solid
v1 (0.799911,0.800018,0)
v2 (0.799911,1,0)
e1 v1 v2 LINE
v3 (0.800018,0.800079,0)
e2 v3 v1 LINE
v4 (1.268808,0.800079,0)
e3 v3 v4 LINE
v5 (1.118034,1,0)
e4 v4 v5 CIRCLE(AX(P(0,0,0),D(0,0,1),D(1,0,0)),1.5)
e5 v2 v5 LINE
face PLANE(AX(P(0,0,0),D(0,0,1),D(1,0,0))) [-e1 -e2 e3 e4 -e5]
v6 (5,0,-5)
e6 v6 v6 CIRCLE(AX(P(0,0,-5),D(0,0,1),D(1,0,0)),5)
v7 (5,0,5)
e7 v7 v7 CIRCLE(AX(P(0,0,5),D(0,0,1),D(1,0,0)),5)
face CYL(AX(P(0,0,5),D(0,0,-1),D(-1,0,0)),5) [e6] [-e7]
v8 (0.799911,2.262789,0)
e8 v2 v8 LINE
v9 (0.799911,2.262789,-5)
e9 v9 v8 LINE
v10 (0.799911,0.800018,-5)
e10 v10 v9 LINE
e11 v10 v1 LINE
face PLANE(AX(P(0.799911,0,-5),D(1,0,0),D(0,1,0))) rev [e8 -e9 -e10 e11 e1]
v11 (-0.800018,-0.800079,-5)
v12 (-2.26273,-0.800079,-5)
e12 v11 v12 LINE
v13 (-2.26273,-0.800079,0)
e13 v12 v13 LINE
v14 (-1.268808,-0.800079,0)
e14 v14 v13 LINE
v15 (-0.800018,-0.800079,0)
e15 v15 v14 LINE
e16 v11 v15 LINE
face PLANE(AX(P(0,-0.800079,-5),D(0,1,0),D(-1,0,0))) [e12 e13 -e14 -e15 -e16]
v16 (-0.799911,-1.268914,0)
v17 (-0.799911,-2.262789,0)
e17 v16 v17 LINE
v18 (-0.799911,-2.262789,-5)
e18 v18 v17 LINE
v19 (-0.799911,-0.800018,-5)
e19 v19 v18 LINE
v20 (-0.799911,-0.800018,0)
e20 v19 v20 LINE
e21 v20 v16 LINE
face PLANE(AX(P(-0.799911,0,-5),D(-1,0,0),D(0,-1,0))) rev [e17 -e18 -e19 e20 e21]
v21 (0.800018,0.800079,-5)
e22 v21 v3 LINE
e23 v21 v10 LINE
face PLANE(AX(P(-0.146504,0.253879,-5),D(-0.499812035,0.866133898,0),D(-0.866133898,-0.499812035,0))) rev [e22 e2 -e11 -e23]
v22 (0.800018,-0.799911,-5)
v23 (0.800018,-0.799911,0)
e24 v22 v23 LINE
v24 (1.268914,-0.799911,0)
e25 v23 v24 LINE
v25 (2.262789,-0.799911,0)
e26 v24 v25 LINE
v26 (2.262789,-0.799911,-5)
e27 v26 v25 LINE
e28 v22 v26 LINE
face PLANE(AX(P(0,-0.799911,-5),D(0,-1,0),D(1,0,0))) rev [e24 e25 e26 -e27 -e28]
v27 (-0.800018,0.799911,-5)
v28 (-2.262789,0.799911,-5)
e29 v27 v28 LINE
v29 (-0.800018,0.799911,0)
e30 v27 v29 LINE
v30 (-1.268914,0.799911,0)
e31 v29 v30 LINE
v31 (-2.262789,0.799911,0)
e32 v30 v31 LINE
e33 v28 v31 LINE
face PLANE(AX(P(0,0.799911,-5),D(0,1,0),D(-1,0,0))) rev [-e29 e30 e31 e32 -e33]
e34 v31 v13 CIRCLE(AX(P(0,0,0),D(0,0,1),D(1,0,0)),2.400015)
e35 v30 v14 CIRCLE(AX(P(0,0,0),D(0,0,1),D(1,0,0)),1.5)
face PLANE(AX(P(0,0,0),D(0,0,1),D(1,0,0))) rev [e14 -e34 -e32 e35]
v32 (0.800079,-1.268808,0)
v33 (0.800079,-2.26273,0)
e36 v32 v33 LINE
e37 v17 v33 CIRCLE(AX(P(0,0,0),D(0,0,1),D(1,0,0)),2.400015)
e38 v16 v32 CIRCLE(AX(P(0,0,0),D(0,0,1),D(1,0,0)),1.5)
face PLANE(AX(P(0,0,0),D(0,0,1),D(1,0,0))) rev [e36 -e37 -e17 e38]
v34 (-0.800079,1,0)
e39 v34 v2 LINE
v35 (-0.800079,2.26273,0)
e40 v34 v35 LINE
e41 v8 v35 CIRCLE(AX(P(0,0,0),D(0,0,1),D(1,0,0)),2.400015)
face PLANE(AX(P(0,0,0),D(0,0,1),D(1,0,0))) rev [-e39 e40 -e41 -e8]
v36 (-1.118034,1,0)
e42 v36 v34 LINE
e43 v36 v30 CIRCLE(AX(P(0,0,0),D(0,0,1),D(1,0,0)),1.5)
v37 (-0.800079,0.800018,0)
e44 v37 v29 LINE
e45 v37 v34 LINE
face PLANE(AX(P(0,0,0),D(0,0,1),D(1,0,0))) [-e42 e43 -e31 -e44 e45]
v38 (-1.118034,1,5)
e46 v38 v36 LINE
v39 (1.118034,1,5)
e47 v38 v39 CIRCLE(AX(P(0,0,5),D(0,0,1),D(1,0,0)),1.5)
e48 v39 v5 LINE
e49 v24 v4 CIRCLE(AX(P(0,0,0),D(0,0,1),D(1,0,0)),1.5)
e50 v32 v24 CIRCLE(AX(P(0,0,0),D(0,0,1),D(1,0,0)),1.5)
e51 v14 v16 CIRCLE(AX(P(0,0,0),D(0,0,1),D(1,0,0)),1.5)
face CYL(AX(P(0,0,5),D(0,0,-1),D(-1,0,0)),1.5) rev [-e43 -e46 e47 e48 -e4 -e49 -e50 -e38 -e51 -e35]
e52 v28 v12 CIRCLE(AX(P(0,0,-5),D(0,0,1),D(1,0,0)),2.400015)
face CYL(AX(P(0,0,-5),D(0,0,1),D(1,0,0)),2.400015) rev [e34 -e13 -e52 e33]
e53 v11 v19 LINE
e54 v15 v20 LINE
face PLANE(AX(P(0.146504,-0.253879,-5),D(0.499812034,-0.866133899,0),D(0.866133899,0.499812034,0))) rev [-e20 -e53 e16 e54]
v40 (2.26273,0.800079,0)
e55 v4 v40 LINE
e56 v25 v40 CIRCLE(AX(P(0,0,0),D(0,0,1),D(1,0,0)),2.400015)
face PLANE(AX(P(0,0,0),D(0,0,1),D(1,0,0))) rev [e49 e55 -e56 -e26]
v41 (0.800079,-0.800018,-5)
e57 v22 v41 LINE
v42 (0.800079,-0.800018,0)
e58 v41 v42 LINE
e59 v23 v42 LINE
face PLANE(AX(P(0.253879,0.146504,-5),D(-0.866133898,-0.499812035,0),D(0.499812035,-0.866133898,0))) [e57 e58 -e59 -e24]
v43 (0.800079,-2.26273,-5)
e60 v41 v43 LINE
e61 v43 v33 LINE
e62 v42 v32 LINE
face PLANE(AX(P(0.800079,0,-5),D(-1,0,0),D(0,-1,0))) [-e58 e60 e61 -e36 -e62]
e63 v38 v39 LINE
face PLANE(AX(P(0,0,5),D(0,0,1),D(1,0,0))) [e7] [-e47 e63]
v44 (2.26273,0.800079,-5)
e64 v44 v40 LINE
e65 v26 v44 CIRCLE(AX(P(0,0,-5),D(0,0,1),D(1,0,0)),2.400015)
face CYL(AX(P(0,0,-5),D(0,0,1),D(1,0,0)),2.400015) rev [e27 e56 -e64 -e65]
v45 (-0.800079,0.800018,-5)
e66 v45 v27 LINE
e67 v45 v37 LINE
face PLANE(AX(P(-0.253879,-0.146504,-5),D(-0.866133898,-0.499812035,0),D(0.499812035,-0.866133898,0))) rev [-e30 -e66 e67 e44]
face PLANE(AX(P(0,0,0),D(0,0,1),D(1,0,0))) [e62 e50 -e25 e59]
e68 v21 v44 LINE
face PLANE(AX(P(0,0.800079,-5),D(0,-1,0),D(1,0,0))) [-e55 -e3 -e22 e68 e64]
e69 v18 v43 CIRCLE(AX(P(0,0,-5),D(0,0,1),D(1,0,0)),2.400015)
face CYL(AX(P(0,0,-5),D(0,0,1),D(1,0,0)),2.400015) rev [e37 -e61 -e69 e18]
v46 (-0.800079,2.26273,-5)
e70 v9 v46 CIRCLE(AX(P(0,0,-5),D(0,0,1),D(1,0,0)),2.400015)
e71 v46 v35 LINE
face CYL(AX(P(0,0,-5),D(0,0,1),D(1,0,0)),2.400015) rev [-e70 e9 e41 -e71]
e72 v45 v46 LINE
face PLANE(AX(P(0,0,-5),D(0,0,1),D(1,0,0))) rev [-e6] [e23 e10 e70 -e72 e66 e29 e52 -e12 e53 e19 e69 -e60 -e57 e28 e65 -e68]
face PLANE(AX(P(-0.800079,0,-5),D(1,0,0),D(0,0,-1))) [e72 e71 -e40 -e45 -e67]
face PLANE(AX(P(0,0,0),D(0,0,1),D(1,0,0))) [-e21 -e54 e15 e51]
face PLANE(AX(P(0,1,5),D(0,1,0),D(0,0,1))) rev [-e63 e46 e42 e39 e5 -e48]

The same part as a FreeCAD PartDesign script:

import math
import FreeCAD as App
import Part
import Sketcher

V = App.Vector
Q = App.Units.Quantity

doc = App.newDocument("Part")
params = doc.addObject("Spreadsheet::Sheet", "Params")
for row, (alias, value) in enumerate([
    ("sketch1_diameter", "10 mm"),
    ("sketch1_radius", "1.5 mm"),
    ("pad1_length", "5 mm"),
    ("sketch2_diameter", "10 mm"),
    ("pad2_length", "5 mm"),
], start=1):
    params.set(f"A{row}", alias)
    params.set(f"B{row}", "=" + value)
    params.setAlias(f"B{row}", alias)

body = doc.addObject("PartDesign::Body", "Body")

# Sketch on XY plane
sketch1 = body.newObject("Sketcher::SketchObject", "Sketch")
sketch1.AttachmentSupport = (doc.getObject("XY_Plane"), [""])
sketch1.MapMode = "FlatFace"
sketch1.addGeometry([
    Part.Circle(V(0, 0, 0), V(0, 0, 1), 5),  # 0
    Part.ArcOfCircle(Part.Circle(V(0, 0, 0), V(0, 0, 1), 1.5), math.radians(0), math.radians(32)),  # 1
    Part.ArcOfCircle(Part.Circle(V(0, 0, 0), V(0, 0, 1), 1.5), math.radians(-32), math.radians(0)),  # 2
    Part.ArcOfCircle(Part.Circle(V(0, 0, 0), V(0, 0, 1), 1.5), math.radians(-58), math.radians(-32)),  # 3
    Part.ArcOfCircle(Part.Circle(V(0, 0, 0), V(0, 0, 1), 1.5), math.radians(-122), math.radians(-58)),  # 4
    Part.ArcOfCircle(Part.Circle(V(0, 0, 0), V(0, 0, 1), 1.5), math.radians(-148), math.radians(-122)),  # 5
    Part.ArcOfCircle(Part.Circle(V(0, 0, 0), V(0, 0, 1), 1.5), math.radians(148), math.radians(212)),  # 6
    Part.ArcOfCircle(Part.Circle(V(0, 0, 0), V(0, 0, 1), 1.5), math.radians(138.19), math.radians(147.77)),  # 7
    Part.LineSegment(V(-1.12, 1, 0), V(1.12, 1, 0)),  # 8
    Part.ArcOfCircle(Part.Circle(V(0, 0, 0), V(0, 0, 1), 1.5), math.radians(32.23), math.radians(41.81)),  # 9
], False)
sketch1.addConstraint([
    Sketcher.Constraint("Tangent", 1, 1, 2, 2),
    Sketcher.Constraint("Tangent", 2, 1, 3, 2),
    Sketcher.Constraint("Tangent", 3, 1, 4, 2),
    Sketcher.Constraint("Tangent", 4, 1, 5, 2),
    Sketcher.Constraint("Tangent", 5, 1, 6, 2),
    Sketcher.Constraint("Tangent", 6, 1, 7, 2),
    Sketcher.Constraint("Coincident", 7, 1, 8, 1),
    Sketcher.Constraint("Coincident", 8, 2, 9, 2),
    Sketcher.Constraint("Tangent", 9, 1, 1, 2),
    Sketcher.Constraint("Horizontal", 8),
    Sketcher.Constraint("Coincident", 0, 3, -1, 1),
    Sketcher.Constraint("Coincident", 1, 3, -1, 1),
    Sketcher.Constraint("Coincident", 3, 3, -1, 1),
    Sketcher.Constraint("Coincident", 5, 3, -1, 1),
    Sketcher.Constraint("Coincident", 7, 3, -1, 1),
    Sketcher.Constraint("Equal", 7, 9),
    Sketcher.Constraint("PointOnObject", 1, 1, -1),
    Sketcher.Constraint("Diameter", 0, Q("10 mm")),
    Sketcher.Constraint("Radius", 1, Q("1.5 mm")),
    Sketcher.Constraint("DistanceY", -1, 1, 7, 1, Q("1 mm")),
    Sketcher.Constraint("DistanceY", 2, 1, -1, 1, Q("0.799911 mm")),
    Sketcher.Constraint("DistanceX", -1, 1, 3, 1, Q("0.800079 mm")),
    Sketcher.Constraint("DistanceX", 4, 1, -1, 1, Q("0.799911 mm")),
    Sketcher.Constraint("DistanceY", 5, 1, -1, 1, Q("0.800079 mm")),
    Sketcher.Constraint("DistanceY", -1, 1, 6, 1, Q("0.799911 mm")),
    Sketcher.Constraint("DistanceY", -1, 1, 9, 1, Q("0.800079 mm")),
])
sketch1.setExpression("Constraints[17]", "Params.sketch1_diameter")
sketch1.setExpression("Constraints[18]", "Params.sketch1_radius")
pad1 = body.newObject("PartDesign::Pad", "Pad")
pad1.Profile = sketch1
pad1.setExpression("Length", "Params.pad1_length")

# Sketch on XY plane
sketch2 = body.newObject("Sketcher::SketchObject", "Sketch001")
sketch2.AttachmentSupport = (doc.getObject("XY_Plane"), [""])
sketch2.MapMode = "FlatFace"
sketch2.AttachmentOffset = App.Placement(V(0, 0, -5), App.Rotation())
sketch2.addGeometry([
    Part.Circle(V(0, 0, 0), V(0, 0, 1), 5),  # 0
    Part.ArcOfCircle(Part.Circle(V(0, 0, 0), V(0, 0, 1), 2.400015), math.radians(-19.468853), math.radians(19.473103)),  # 1
    Part.LineSegment(V(2.262789, -0.799911, 0), V(0.800018, -0.799911, 0)),  # 2
    Part.LineSegment(V(0.800018, -0.799911, 0), V(0.800079, -0.800018, 0)),  # 3
    Part.LineSegment(V(0.800079, -0.800018, 0), V(0.800079, -2.26273, 0)),  # 4
    Part.ArcOfCircle(Part.Circle(V(0, 0, 0), V(0, 0, 1), 2.400015), math.radians(-109.468853), math.radians(-70.526897)),  # 5
    Part.LineSegment(V(-0.799911, -2.262789, 0), V(-0.799911, -0.800018, 0)),  # 6
    Part.LineSegment(V(-0.799911, -0.800018, 0), V(-0.800018, -0.800079, 0)),  # 7
    Part.LineSegment(V(-0.800018, -0.800079, 0), V(-2.26273, -0.800079, 0)),  # 8
    Part.ArcOfCircle(Part.Circle(V(0, 0, 0), V(0, 0, 1), 2.400015), math.radians(160.531147), math.radians(199.473103)),  # 9
    Part.LineSegment(V(-2.262789, 0.799911, 0), V(-0.800018, 0.799911, 0)),  # 10
    Part.LineSegment(V(-0.800018, 0.799911, 0), V(-0.800079, 0.800018, 0)),  # 11
    Part.LineSegment(V(-0.800079, 0.800018, 0), V(-0.800079, 2.26273, 0)),  # 12
    Part.ArcOfCircle(Part.Circle(V(0, 0, 0), V(0, 0, 1), 2.400015), math.radians(70.531147), math.radians(109.473103)),  # 13
    Part.LineSegment(V(0.799911, 2.262789, 0), V(0.799911, 0.800018, 0)),  # 14
    Part.LineSegment(V(0.799911, 0.800018, 0), V(0.800018, 0.800079, 0)),  # 15
    Part.LineSegment(V(0.800018, 0.800079, 0), V(2.26273, 0.800079, 0)),  # 16
], False)
sketch2.addConstraint([
    Sketcher.Constraint("Coincident", 1, 1, 2, 1),
    Sketcher.Constraint("Coincident", 2, 2, 3, 1),
    Sketcher.Constraint("Coincident", 3, 2, 4, 1),
    Sketcher.Constraint("Coincident", 4, 2, 5, 2),
    Sketcher.Constraint("Coincident", 5, 1, 6, 1),
    Sketcher.Constraint("Coincident", 6, 2, 7, 1),
    Sketcher.Constraint("Coincident", 7, 2, 8, 1),
    Sketcher.Constraint("Coincident", 8, 2, 9, 2),
    Sketcher.Constraint("Coincident", 9, 1, 10, 1),
    Sketcher.Constraint("Coincident", 10, 2, 11, 1),
    Sketcher.Constraint("Coincident", 11, 2, 12, 1),
    Sketcher.Constraint("Coincident", 12, 2, 13, 2),
    Sketcher.Constraint("Coincident", 13, 1, 14, 1),
    Sketcher.Constraint("Coincident", 14, 2, 15, 1),
    Sketcher.Constraint("Coincident", 15, 2, 16, 1),
    Sketcher.Constraint("Coincident", 16, 2, 1, 2),
    Sketcher.Constraint("Horizontal", 2),
    Sketcher.Constraint("Vertical", 4),
    Sketcher.Constraint("Vertical", 6),
    Sketcher.Constraint("Horizontal", 8),
    Sketcher.Constraint("Horizontal", 10),
    Sketcher.Constraint("Vertical", 12),
    Sketcher.Constraint("Vertical", 14),
    Sketcher.Constraint("Horizontal", 16),
    Sketcher.Constraint("Coincident", 0, 3, -1, 1),
    Sketcher.Constraint("Coincident", 1, 3, -1, 1),
    Sketcher.Constraint("Coincident", 5, 3, -1, 1),
    Sketcher.Constraint("Coincident", 9, 3, -1, 1),
    Sketcher.Constraint("Coincident", 13, 3, -1, 1),
    Sketcher.Constraint("Equal", 1, 5),
    Sketcher.Constraint("Equal", 5, 9),
    Sketcher.Constraint("Equal", 9, 13),
    Sketcher.Constraint("Symmetric", 2, 2, 10, 2, -1, 1),
    Sketcher.Constraint("Symmetric", 3, 2, 11, 2, -1, 1),
    Sketcher.Constraint("Symmetric", 6, 2, 14, 2, -1, 1),
    Sketcher.Constraint("Symmetric", 7, 2, 15, 2, -1, 1),
    Sketcher.Constraint("Perpendicular", 3, 7),
    Sketcher.Constraint("Horizontal", 3, 2, 6, 2),
    Sketcher.Constraint("Vertical", 7, 2, 10, 2),
    Sketcher.Constraint("Equal", 16, 4),
    Sketcher.Constraint("Equal", 10, 6),
    Sketcher.Constraint("Diameter", 0, Q("10 mm")),
    Sketcher.Constraint("Radius", 1, Q("2.400015 mm")),
    Sketcher.Constraint("DistanceX", 2, 2, 2, 1, Q("1.462771 mm")),
    Sketcher.Constraint("DistanceX", 8, 2, 8, 1, Q("1.462712 mm")),
    Sketcher.Constraint("DistanceX", -1, 1, 1, 1, Q("2.262789 mm")),
])
sketch2.setExpression("Constraints[41]", "Params.sketch2_diameter")
pad2 = body.newObject("PartDesign::Pad", "Pad001")
pad2.Profile = sketch2
pad2.setExpression("Length", "Params.pad2_length")

doc.recompute()
